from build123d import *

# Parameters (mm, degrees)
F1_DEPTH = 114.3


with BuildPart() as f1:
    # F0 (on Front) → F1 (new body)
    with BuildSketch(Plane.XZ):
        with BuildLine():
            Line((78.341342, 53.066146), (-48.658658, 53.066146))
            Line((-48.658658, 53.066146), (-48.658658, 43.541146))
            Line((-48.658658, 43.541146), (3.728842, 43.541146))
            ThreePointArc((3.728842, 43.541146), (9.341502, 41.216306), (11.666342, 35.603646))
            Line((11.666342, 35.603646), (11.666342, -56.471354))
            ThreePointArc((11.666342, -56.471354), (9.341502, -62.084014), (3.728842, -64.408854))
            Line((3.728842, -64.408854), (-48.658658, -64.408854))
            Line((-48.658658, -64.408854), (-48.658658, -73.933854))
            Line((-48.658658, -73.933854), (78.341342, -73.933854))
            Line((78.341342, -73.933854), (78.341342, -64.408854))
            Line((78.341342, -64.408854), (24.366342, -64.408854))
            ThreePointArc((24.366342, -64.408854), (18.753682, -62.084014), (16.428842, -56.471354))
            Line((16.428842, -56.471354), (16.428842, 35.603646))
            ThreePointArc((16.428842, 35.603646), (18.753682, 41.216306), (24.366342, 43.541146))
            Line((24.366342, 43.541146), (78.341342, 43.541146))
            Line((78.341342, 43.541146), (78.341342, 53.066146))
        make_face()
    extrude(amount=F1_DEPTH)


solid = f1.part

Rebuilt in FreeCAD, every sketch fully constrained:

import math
import FreeCAD as App
import Part
import Sketcher
Q = App.Units.Quantity

doc = App.newDocument("Part")
body = doc.addObject("PartDesign::Body", "Body")

# Sketch on XZ plane
sketch1 = body.newObject("Sketcher::SketchObject", "Sketch")
sketch1.AttachmentSupport = (doc.getObject("XZ_Plane"), [""])
sketch1.MapMode = "FlatFace"
sketch1.addGeometry([
    Part.LineSegment(App.Vector(78.341342, 53.066146, 0), App.Vector(-48.658658, 53.066146, 0)),  # 0
    Part.LineSegment(App.Vector(-48.658658, 53.066146, 0), App.Vector(-48.658658, 43.541146, 0)),  # 1
    Part.LineSegment(App.Vector(-48.658658, 43.541146, 0), App.Vector(3.728842, 43.541146, 0)),  # 2
    Part.ArcOfCircle(Part.Circle(App.Vector(3.728842, 35.603646, 0), App.Vector(0, 0, 1), 7.9375), math.radians(0.000002), math.radians(89.999998)),  # 3
    Part.LineSegment(App.Vector(11.666342, 35.603646, 0), App.Vector(11.666342, -56.471354, 0)),  # 4
    Part.ArcOfCircle(Part.Circle(App.Vector(3.728842, -56.471354, 0), App.Vector(0, 0, 1), 7.9375), math.radians(-89.999998), math.radians(-0.000002)),  # 5
    Part.LineSegment(App.Vector(3.728842, -64.408854, 0), App.Vector(-48.658658, -64.408854, 0)),  # 6
    Part.LineSegment(App.Vector(-48.658658, -64.408854, 0), App.Vector(-48.658658, -73.933854, 0)),  # 7
    Part.LineSegment(App.Vector(-48.658658, -73.933854, 0), App.Vector(78.341342, -73.933854, 0)),  # 8
    Part.LineSegment(App.Vector(78.341342, -73.933854, 0), App.Vector(78.341342, -64.408854, 0)),  # 9
    Part.LineSegment(App.Vector(78.341342, -64.408854, 0), App.Vector(24.366342, -64.408854, 0)),  # 10
    Part.ArcOfCircle(Part.Circle(App.Vector(24.366342, -56.471354, 0), App.Vector(0, 0, 1), 7.9375), math.radians(-179.999998), math.radians(-90.000002)),  # 11
    Part.LineSegment(App.Vector(16.428842, -56.471354, 0), App.Vector(16.428842, 35.603646, 0)),  # 12
    Part.ArcOfCircle(Part.Circle(App.Vector(24.366342, 35.603646, 0), App.Vector(0, 0, 1), 7.9375), math.radians(90.000002), math.radians(179.999998)),  # 13
    Part.LineSegment(App.Vector(24.366342, 43.541146, 0), App.Vector(78.341342, 43.541146, 0)),  # 14
    Part.LineSegment(App.Vector(78.341342, 43.541146, 0), App.Vector(78.341342, 53.066146, 0)),  # 15
], False)
sketch1.addConstraint([
    Sketcher.Constraint("Coincident", 0, 2, 1, 1),
    Sketcher.Constraint("Coincident", 1, 2, 2, 1),
    Sketcher.Constraint("Tangent", 2, 2, 3, 2),
    Sketcher.Constraint("Tangent", 3, 1, 4, 1),
    Sketcher.Constraint("Tangent", 4, 2, 5, 2),
    Sketcher.Constraint("Tangent", 5, 1, 6, 1),
    Sketcher.Constraint("Coincident", 6, 2, 7, 1),
    Sketcher.Constraint("Coincident", 7, 2, 8, 1),
    Sketcher.Constraint("Coincident", 8, 2, 9, 1),
    Sketcher.Constraint("Coincident", 9, 2, 10, 1),
    Sketcher.Constraint("Tangent", 10, 2, 11, 2),
    Sketcher.Constraint("Tangent", 11, 1, 12, 1),
    Sketcher.Constraint("Tangent", 12, 2, 13, 2),
    Sketcher.Constraint("Tangent", 13, 1, 14, 1),
    Sketcher.Constraint("Coincident", 14, 2, 15, 1),
    Sketcher.Constraint("Coincident", 15, 2, 0, 1),
    Sketcher.Constraint("Horizontal", 0),
    Sketcher.Constraint("Vertical", 1),
    Sketcher.Constraint("Horizontal", 2),
    Sketcher.Constraint("Vertical", 4),
    Sketcher.Constraint("Horizontal", 6),
    Sketcher.Constraint("Vertical", 7),
    Sketcher.Constraint("Horizontal", 8),
    Sketcher.Constraint("Vertical", 9),
    Sketcher.Constraint("Horizontal", 10),
    Sketcher.Constraint("Vertical", 12),
    Sketcher.Constraint("Horizontal", 14),
    Sketcher.Constraint("Vertical", 15),
    Sketcher.Constraint("Equal", 3, 5),
    Sketcher.Constraint("Equal", 5, 11),
    Sketcher.Constraint("Equal", 11, 13),
    Sketcher.Constraint("Horizontal", 5, 3, 11, 3),
    Sketcher.Constraint("Horizontal", 3, 3, 13, 3),
    Sketcher.Constraint("Vertical", 1, 2, 6, 2),
    Sketcher.Constraint("Vertical", 9, 2, 14, 2),
    Sketcher.Constraint("Equal", 1, 7),
    Sketcher.Constraint("DistanceX", 0, 2, 0, 1, Q("5 in")),
    Sketcher.Constraint("Radius", 3, Q("0.3125 in")),
    Sketcher.Constraint("DistanceX", 3, 1, 13, 3, Q("0.5 in")),
    Sketcher.Constraint("DistanceX", 2, 1, 2, 2, Q("2.0625 in")),
    Sketcher.Constraint("DistanceY", 1, 2, 1, 1, Q("0.375 in")),
    Sketcher.Constraint("DistanceY", 4, 2, 4, 1, Q("3.625 in")),
    Sketcher.Constraint("DistanceX", -1, 1, 3, 3, 3.728842),
    Sketcher.Constraint("DistanceY", -1, 1, 3, 3, 35.603646),
])
pad1 = body.newObject("PartDesign::Pad", "Pad")
pad1.Profile = sketch1
pad1.Length = Q("4.5 in")

doc.recompute()
